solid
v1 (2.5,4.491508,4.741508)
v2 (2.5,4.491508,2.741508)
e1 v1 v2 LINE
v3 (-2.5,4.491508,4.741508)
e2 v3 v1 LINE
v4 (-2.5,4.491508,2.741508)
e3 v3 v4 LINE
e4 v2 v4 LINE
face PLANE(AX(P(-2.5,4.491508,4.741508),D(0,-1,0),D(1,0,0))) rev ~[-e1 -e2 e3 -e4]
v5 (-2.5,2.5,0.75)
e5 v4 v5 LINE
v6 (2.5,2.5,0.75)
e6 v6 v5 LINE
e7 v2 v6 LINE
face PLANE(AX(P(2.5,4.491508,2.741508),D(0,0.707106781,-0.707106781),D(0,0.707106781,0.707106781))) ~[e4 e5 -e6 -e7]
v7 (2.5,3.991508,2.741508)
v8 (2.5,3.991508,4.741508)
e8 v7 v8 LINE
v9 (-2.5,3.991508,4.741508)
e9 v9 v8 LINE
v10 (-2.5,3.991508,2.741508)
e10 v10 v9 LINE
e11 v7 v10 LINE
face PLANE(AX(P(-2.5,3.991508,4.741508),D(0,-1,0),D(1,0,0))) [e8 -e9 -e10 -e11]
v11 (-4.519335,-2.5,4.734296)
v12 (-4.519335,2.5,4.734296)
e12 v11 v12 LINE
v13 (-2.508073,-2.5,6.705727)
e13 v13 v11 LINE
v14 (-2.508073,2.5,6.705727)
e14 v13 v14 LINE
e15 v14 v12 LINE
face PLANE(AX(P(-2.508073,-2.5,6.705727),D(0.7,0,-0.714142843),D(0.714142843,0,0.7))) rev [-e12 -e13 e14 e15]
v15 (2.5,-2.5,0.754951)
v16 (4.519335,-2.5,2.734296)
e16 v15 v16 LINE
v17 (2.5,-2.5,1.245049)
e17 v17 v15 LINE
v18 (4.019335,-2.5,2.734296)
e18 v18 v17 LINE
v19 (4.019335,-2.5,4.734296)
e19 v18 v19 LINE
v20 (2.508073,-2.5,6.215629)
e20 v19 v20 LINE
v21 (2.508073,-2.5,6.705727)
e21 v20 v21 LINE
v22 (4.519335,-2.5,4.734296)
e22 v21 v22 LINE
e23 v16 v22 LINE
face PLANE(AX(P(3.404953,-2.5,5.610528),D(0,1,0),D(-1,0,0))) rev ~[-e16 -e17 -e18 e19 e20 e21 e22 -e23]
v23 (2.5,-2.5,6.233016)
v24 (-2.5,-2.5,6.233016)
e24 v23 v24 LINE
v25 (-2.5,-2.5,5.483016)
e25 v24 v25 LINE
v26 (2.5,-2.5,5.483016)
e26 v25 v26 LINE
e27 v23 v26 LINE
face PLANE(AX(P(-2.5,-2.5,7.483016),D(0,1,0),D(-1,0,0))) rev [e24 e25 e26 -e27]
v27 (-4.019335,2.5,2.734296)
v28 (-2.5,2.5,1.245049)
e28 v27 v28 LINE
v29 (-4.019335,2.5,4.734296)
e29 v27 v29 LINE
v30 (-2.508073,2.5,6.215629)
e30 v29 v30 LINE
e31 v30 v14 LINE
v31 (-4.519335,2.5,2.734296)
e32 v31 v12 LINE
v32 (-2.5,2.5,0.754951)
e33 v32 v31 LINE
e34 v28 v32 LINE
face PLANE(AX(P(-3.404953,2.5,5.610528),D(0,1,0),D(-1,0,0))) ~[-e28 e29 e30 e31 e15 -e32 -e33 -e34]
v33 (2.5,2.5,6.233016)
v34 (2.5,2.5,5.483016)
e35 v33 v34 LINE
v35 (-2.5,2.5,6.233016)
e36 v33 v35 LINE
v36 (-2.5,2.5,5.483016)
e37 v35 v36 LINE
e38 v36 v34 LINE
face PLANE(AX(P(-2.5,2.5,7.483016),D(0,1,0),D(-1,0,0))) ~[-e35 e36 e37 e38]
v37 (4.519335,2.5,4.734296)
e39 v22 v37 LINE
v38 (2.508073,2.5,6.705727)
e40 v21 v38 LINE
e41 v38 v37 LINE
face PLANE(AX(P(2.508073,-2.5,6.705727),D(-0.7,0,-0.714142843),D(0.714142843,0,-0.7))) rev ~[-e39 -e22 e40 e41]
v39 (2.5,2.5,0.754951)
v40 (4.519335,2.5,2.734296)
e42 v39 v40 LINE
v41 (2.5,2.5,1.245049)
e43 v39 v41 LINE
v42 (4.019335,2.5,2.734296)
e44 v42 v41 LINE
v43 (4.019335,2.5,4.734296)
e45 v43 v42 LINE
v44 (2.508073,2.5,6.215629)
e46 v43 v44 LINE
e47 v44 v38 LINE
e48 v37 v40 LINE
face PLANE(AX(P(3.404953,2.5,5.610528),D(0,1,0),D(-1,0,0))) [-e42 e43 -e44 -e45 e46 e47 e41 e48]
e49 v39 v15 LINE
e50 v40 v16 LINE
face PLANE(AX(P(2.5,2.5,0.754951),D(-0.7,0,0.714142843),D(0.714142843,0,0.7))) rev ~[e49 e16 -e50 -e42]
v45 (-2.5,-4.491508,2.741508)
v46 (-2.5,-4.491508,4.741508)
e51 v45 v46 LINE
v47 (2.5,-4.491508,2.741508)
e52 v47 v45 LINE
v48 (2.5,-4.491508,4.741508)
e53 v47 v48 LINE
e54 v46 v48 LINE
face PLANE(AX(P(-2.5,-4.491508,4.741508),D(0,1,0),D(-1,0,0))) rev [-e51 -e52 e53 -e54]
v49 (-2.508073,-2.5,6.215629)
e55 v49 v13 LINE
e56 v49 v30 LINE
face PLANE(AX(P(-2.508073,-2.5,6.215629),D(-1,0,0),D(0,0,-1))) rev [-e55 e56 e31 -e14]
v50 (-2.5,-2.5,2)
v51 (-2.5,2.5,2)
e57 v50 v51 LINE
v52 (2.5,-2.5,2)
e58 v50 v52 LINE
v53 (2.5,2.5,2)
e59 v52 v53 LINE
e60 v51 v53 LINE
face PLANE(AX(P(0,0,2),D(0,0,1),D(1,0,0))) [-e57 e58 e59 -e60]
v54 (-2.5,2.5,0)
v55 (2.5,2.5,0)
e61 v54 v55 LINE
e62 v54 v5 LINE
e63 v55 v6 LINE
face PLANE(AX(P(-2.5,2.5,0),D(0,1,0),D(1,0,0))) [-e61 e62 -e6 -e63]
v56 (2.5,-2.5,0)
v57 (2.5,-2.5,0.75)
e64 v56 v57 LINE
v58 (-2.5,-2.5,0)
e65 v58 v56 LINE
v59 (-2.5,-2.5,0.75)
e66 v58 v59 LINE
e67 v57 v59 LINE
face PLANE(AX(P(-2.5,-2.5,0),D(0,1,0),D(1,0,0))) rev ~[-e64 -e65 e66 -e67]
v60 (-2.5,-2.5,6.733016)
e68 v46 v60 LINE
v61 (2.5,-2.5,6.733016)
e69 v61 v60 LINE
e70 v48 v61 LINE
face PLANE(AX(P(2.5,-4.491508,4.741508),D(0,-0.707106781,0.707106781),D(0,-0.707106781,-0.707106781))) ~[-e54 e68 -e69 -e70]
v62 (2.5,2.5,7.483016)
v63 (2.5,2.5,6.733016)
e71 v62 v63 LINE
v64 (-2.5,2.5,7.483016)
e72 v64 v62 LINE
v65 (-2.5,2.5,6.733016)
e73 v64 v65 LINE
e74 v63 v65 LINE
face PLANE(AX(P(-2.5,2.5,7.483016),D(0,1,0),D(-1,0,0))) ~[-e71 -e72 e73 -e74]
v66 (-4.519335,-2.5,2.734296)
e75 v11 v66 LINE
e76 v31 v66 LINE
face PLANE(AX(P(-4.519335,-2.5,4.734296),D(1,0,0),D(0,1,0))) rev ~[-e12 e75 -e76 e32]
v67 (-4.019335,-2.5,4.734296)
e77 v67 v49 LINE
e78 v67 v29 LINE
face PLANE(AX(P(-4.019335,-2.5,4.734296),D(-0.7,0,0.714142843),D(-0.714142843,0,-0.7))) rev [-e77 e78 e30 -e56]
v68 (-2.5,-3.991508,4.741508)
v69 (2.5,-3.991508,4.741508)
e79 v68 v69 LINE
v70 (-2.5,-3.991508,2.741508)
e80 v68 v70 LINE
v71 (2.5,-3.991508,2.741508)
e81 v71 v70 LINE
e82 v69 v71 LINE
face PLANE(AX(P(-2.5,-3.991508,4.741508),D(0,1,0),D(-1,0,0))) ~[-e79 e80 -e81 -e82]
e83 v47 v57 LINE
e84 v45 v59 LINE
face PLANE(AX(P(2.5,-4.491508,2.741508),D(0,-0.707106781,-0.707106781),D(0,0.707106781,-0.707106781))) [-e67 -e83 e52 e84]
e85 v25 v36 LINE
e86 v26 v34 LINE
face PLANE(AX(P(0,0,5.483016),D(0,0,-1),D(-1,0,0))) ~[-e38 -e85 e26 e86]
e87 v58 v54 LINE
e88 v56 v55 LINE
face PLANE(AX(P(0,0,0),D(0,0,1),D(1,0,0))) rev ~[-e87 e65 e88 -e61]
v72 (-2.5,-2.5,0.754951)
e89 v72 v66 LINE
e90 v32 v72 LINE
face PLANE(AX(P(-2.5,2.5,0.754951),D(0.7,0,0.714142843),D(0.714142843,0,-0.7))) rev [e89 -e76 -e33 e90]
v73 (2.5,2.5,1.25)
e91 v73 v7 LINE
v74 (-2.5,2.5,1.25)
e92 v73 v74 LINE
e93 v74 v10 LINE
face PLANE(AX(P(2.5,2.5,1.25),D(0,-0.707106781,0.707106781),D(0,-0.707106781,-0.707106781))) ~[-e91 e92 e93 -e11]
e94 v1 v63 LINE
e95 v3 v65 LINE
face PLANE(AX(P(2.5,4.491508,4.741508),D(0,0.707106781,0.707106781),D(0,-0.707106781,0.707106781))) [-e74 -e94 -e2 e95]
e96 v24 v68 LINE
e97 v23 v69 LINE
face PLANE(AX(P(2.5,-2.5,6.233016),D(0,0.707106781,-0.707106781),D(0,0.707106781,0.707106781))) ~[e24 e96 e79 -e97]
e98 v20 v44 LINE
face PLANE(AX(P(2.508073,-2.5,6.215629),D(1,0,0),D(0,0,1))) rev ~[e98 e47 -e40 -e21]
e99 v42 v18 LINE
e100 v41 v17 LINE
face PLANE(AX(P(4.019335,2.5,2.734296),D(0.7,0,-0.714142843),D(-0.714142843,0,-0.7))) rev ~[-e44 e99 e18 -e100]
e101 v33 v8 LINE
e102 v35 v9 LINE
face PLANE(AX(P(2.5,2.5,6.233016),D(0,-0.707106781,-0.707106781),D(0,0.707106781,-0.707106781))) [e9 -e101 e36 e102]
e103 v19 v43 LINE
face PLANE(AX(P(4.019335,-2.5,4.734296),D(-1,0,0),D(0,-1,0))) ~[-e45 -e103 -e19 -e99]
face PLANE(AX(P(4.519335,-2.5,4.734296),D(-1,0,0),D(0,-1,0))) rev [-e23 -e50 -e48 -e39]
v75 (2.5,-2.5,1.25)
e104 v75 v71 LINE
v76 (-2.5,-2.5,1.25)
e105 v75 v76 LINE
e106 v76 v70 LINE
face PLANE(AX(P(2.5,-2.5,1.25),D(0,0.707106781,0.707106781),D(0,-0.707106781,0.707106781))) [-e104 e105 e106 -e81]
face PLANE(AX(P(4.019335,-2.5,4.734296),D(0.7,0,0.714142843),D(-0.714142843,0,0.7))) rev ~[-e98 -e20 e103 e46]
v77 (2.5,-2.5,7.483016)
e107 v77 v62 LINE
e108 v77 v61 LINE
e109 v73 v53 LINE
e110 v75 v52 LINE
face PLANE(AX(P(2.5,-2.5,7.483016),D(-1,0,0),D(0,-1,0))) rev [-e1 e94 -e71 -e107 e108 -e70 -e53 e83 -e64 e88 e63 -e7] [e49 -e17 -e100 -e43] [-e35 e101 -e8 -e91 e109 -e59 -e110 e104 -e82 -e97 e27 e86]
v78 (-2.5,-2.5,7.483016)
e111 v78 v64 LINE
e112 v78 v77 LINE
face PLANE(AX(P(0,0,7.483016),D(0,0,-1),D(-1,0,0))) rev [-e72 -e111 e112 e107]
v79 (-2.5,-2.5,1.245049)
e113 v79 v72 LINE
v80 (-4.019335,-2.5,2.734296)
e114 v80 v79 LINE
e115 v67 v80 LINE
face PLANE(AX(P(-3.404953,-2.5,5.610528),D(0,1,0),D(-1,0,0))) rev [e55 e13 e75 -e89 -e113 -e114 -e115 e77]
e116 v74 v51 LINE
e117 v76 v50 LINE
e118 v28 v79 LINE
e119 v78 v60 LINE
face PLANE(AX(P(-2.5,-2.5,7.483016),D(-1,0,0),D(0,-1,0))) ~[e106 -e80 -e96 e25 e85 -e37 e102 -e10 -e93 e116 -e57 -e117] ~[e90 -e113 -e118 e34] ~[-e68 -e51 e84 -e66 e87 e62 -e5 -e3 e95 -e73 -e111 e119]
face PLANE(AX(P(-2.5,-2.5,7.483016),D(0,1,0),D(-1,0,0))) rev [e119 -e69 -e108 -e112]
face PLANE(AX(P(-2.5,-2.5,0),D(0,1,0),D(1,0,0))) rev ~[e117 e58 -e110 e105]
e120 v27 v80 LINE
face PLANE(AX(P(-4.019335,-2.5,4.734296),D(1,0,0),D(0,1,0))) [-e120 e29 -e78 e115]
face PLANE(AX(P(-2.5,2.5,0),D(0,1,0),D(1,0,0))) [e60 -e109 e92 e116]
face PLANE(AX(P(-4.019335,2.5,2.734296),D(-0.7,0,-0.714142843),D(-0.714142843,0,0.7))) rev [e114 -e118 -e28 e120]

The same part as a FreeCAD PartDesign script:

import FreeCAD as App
import Part
import Sketcher

doc = App.newDocument("Part")
body = doc.addObject("PartDesign::Body", "Body")

# Sketch on XY plane
sketch1 = doc.addObject("Sketcher::SketchObject", "Sketch")
body.addObject(sketch1)
sketch1.AttachmentSupport = (doc.XY_Plane, [""])
sketch1.MapMode = "FlatFace"
sketch1.addGeometry([
    Part.LineSegment(App.Vector(-2, 2, 0), App.Vector(-2, -2, 0)),
    Part.LineSegment(App.Vector(-2, -2, 0), App.Vector(2, -2, 0)),
    Part.LineSegment(App.Vector(2, -2, 0), App.Vector(2, 2, 0)),
    Part.LineSegment(App.Vector(2, 2, 0), App.Vector(-2, 2, 0)),
], False)
sketch1.addConstraint([
    Sketcher.Constraint("Coincident", 0, 2, 1, 1),
    Sketcher.Constraint("Coincident", 1, 2, 2, 1),
    Sketcher.Constraint("Coincident", 2, 2, 3, 1),
    Sketcher.Constraint("Coincident", 3, 2, 0, 1),
    Sketcher.Constraint("Vertical", 0),
    Sketcher.Constraint("Horizontal", 1),
    Sketcher.Constraint("Vertical", 2),
    Sketcher.Constraint("Horizontal", 3),
    Sketcher.Constraint("Symmetric", 0, 2, 2, 2, -1, 1),
    Sketcher.Constraint("Equal", 3, 0),
    Sketcher.Constraint("DistanceX", 1, 1, 1, 2, 5.0),
])
pad1 = doc.addObject("PartDesign::Pad", "Pad")
body.addObject(pad1)
pad1.Profile = sketch1
pad1.Length = 2

# Sketch on YZ plane
sketch2 = doc.addObject("Sketcher::SketchObject", "Sketch001")
body.addObject(sketch2)
sketch2.AttachmentSupport = (doc.YZ_Plane, [""])
sketch2.MapMode = "FlatFace"
sketch2.AttachmentOffset = App.Placement(App.Vector(0, 0, 2.5), App.Rotation())
sketch2.addGeometry([
    Part.LineSegment(App.Vector(-2.5, 1.2, 0), App.Vector(-4, 2.7, 0)),
    Part.LineSegment(App.Vector(-4, 2.7, 0), App.Vector(-4.5, 2.7, 0)),
    Part.LineSegment(App.Vector(-4.5, 2.7, 0), App.Vector(-2.5, 0.8, 0)),
    Part.LineSegment(App.Vector(-2.5, 0.8, 0), App.Vector(-2.5, 1.2, 0)),
], False)
sketch2.addConstraint([
    Sketcher.Constraint("Coincident", 0, 2, 1, 1),
    Sketcher.Constraint("Coincident", 1, 2, 2, 1),
    Sketcher.Constraint("Coincident", 2, 2, 3, 1),
    Sketcher.Constraint("Coincident", 3, 2, 0, 1),
    Sketcher.Constraint("Horizontal", 1),
    Sketcher.Constraint("Vertical", 3),
    Sketcher.Constraint("Parallel", 0, 2),
    Sketcher.Constraint("Equal", 1, 3),
    Sketcher.Constraint("DistanceX", 1, 2, 1, 1, 0.5),
    Sketcher.Constraint("DistanceX", 2, 2, -1, 1, 2.5),
    Sketcher.Constraint("DistanceY", -1, 1, 2, 2, 0.75),
    Sketcher.Constraint("Distance", 0, 2.109311),
])
pad2 = doc.addObject("PartDesign::Pad", "Pad001")
body.addObject(pad2)
pad2.Profile = sketch2
pad2.Length = 5
pad2.Reversed = True

# Sketch on XZ plane
sketch3 = doc.addObject("Sketcher::SketchObject", "Sketch002")
body.addObject(sketch3)
sketch3.AttachmentSupport = (doc.XZ_Plane, [""])
sketch3.MapMode = "FlatFace"
sketch3.AttachmentOffset = App.Placement(App.Vector(0, 0, -2.5), App.Rotation())
sketch3.addGeometry([
    Part.LineSegment(App.Vector(4.52, 2.73, 0), App.Vector(2.5, 0.75, 0)),
    Part.LineSegment(App.Vector(2.5, 0.75, 0), App.Vector(2.5, 1.25, 0)),
    Part.LineSegment(App.Vector(2.5, 1.25, 0), App.Vector(4.02, 2.73, 0)),
    Part.LineSegment(App.Vector(4.02, 2.73, 0), App.Vector(4.52, 2.73, 0)),
], False)
sketch3.addConstraint([
    Sketcher.Constraint("Coincident", 0, 2, 1, 1),
    Sketcher.Constraint("Coincident", 1, 2, 2, 1),
    Sketcher.Constraint("Coincident", 2, 2, 3, 1),
    Sketcher.Constraint("Coincident", 3, 2, 0, 1),
    Sketcher.Constraint("Vertical", 1),
    Sketcher.Constraint("Horizontal", 3),
    Sketcher.Constraint("Parallel", 0, 2),
    Sketcher.Constraint("DistanceX", 3, 1, 3, 2, 0.5),
    Sketcher.Constraint("DistanceX", -1, 1, 0, 2, 2.5),
    Sketcher.Constraint("DistanceY", 1, 1, 1, 2, 0.490098),
    Sketcher.Constraint("DistanceY", -1, 1, 0, 2, 0.754951),
    Sketcher.Constraint("Distance", 0, 2.827635),
])
pad3 = doc.addObject("PartDesign::Pad", "Pad002")
body.addObject(pad3)
pad3.Profile = sketch3
pad3.Length = 5
doc.recompute()

mirrored = doc.addObject("PartDesign::Mirrored", "Mirrored")
body.addObject(mirrored)
mirrored.Originals = [pad2]
mirrored.MirrorPlane = (doc.XZ_Plane, [""])
body.Tip = mirrored
doc.recompute()

mirrored2 = doc.addObject("PartDesign::Mirrored", "Mirrored001")
body.addObject(mirrored2)
mirrored2.Originals = [pad3]
mirrored2.MirrorPlane = (doc.YZ_Plane, [""])
body.Tip = mirrored2

# Sketch on XY plane
sketch4 = doc.addObject("Sketcher::SketchObject", "Sketch003")
body.addObject(sketch4)
sketch4.AttachmentSupport = (doc.XY_Plane, [""])
sketch4.MapMode = "FlatFace"
sketch4.AttachmentOffset = App.Placement(App.Vector(0, 0, 2.741508), App.Rotation())
sketch4.addGeometry([
    Part.LineSegment(App.Vector(-2.5, -4, 0), App.Vector(-2.5, -4.5, 0)),
    Part.LineSegment(App.Vector(-2.5, -4.5, 0), App.Vector(2.5, -4.5, 0)),
    Part.LineSegment(App.Vector(2.5, -4.5, 0), App.Vector(2.5, -4, 0)),
    Part.LineSegment(App.Vector(2.5, -4, 0), App.Vector(-2.5, -4, 0)),
], False)
sketch4.addConstraint([
    Sketcher.Constraint("Coincident", 0, 2, 1, 1),
    Sketcher.Constraint("Coincident", 1, 2, 2, 1),
    Sketcher.Constraint("Coincident", 2, 2, 3, 1),
    Sketcher.Constraint("Coincident", 3, 2, 0, 1),
    Sketcher.Constraint("Vertical", 0),
    Sketcher.Constraint("Horizontal", 1),
    Sketcher.Constraint("Vertical", 2),
    Sketcher.Constraint("Horizontal", 3),
    Sketcher.Constraint("DistanceX", 1, 1, 1, 2, 5.0),
    Sketcher.Constraint("DistanceY", 0, 2, 0, 1, 0.5),
    Sketcher.Constraint("DistanceX", 0, 2, -1, 1, 2.5),
    Sketcher.Constraint("DistanceY", 0, 2, -1, 1, 4.491508),
])
pad4 = doc.addObject("PartDesign::Pad", "Pad003")
body.addObject(pad4)
pad4.Profile = sketch4
pad4.Length = 1

# Sketch on XY plane
sketch5 = doc.addObject("Sketcher::SketchObject", "Sketch004")
body.addObject(sketch5)
sketch5.AttachmentSupport = (doc.XY_Plane, [""])
sketch5.MapMode = "FlatFace"
sketch5.AttachmentOffset = App.Placement(App.Vector(0, 0, 2.734296), App.Rotation())
sketch5.addGeometry([
    Part.LineSegment(App.Vector(4, 2.5, 0), App.Vector(4, -2.5, 0)),
    Part.LineSegment(App.Vector(4, -2.5, 0), App.Vector(4.5, -2.5, 0)),
    Part.LineSegment(App.Vector(4.5, -2.5, 0), App.Vector(4.5, 2.5, 0)),
    Part.LineSegment(App.Vector(4.5, 2.5, 0), App.Vector(4, 2.5, 0)),
], False)
sketch5.addConstraint([
    Sketcher.Constraint("Coincident", 0, 2, 1, 1),
    Sketcher.Constraint("Coincident", 1, 2, 2, 1),
    Sketcher.Constraint("Coincident", 2, 2, 3, 1),
    Sketcher.Constraint("Coincident", 3, 2, 0, 1),
    Sketcher.Constraint("Vertical", 0),
    Sketcher.Constraint("Horizontal", 1),
    Sketcher.Constraint("Vertical", 2),
    Sketcher.Constraint("Horizontal", 3),
    Sketcher.Constraint("DistanceY", 0, 2, 0, 1, 5.0),
    Sketcher.Constraint("DistanceX", 1, 1, 1, 2, 0.5),
    Sketcher.Constraint("DistanceY", 0, 2, -1, 1, 2.5),
    Sketcher.Constraint("DistanceX", -1, 1, 0, 2, 4.019335),
])
pad5 = doc.addObject("PartDesign::Pad", "Pad004")
body.addObject(pad5)
pad5.Profile = sketch5
pad5.Length = 1
doc.recompute()

mirrored3 = doc.addObject("PartDesign::Mirrored", "Mirrored002")
body.addObject(mirrored3)
mirrored3.Originals = [pad4]
mirrored3.MirrorPlane = (doc.XZ_Plane, [""])
body.Tip = mirrored3
doc.recompute()

mirrored4 = doc.addObject("PartDesign::Mirrored", "Mirrored003")
body.addObject(mirrored4)
mirrored4.Originals = [pad5]
mirrored4.MirrorPlane = (doc.YZ_Plane, [""])
body.Tip = mirrored4
doc.recompute()

datumplane = doc.addObject("PartDesign::Plane", "DatumPlane")
body.addObject(datumplane)
datumplane.AttachmentSupport = (doc.XY_Plane, [""])
datumplane.MapMode = "FlatFace"
datumplane.AttachmentOffset = App.Placement(App.Vector(0, 0, 3.741508), App.Rotation())
mirrored5 = doc.addObject("PartDesign::Mirrored", "Mirrored004")
body.addObject(mirrored5)
mirrored5.Originals = [pad4]
mirrored5.MirrorPlane = (datumplane, [""])
body.Tip = mirrored5

# Sketch on XY plane
sketch6 = doc.addObject("Sketcher::SketchObject", "Sketch005")
body.addObject(sketch6)
sketch6.AttachmentSupport = (doc.XY_Plane, [""])
sketch6.MapMode = "FlatFace"
sketch6.AttachmentOffset = App.Placement(App.Vector(0, 0, 4.741508), App.Rotation())
sketch6.addGeometry([
    Part.LineSegment(App.Vector(-2.5, 4, 0), App.Vector(-2.5, 4.5, 0)),
    Part.LineSegment(App.Vector(-2.5, 4.5, 0), App.Vector(2.5, 4.5, 0)),
    Part.LineSegment(App.Vector(2.5, 4.5, 0), App.Vector(2.5, 4, 0)),
    Part.LineSegment(App.Vector(2.5, 4, 0), App.Vector(-2.5, 4, 0)),
], False)
sketch6.addConstraint([
    Sketcher.Constraint("Coincident", 0, 2, 1, 1),
    Sketcher.Constraint("Coincident", 1, 2, 2, 1),
    Sketcher.Constraint("Coincident", 2, 2, 3, 1),
    Sketcher.Constraint("Coincident", 3, 2, 0, 1),
    Sketcher.Constraint("Vertical", 0),
    Sketcher.Constraint("Horizontal", 1),
    Sketcher.Constraint("Vertical", 2),
    Sketcher.Constraint("Horizontal", 3),
    Sketcher.Constraint("DistanceX", 1, 1, 1, 2, 5.0),
    Sketcher.Constraint("DistanceY", 0, 1, 0, 2, 0.5),
    Sketcher.Constraint("DistanceX", 0, 2, -1, 1, 2.5),
    Sketcher.Constraint("DistanceY", -1, 1, 0, 2, 4.491508),
])
pad6 = doc.addObject("PartDesign::Pad", "Pad005")
body.addObject(pad6)
pad6.Profile = sketch6
pad6.Length = 1
pad6.Reversed = True
doc.recompute()

datumplane2 = doc.addObject("PartDesign::Plane", "DatumPlane001")
body.addObject(datumplane2)
datumplane2.AttachmentSupport = (doc.XY_Plane, [""])
datumplane2.MapMode = "FlatFace"
datumplane2.AttachmentOffset = App.Placement(App.Vector(0, 0, 3.741508), App.Rotation())
mirrored6 = doc.addObject("PartDesign::Mirrored", "Mirrored005")
body.addObject(mirrored6)
mirrored6.Originals = [pad2]
mirrored6.MirrorPlane = (datumplane2, [""])
body.Tip = mirrored6

# Sketch on YZ plane
sketch7 = doc.addObject("Sketcher::SketchObject", "Sketch006")
body.addObject(sketch7)
sketch7.AttachmentSupport = (doc.YZ_Plane, [""])
sketch7.MapMode = "FlatFace"
sketch7.AttachmentOffset = App.Placement(App.Vector(0, 0, 2.5), App.Rotation())
sketch7.addGeometry([
    Part.LineSegment(App.Vector(2.5, 6.2, 0), App.Vector(4, 4.7, 0)),
    Part.LineSegment(App.Vector(4, 4.7, 0), App.Vector(4.5, 4.7, 0)),
    Part.LineSegment(App.Vector(4.5, 4.7, 0), App.Vector(2.5, 6.7, 0)),
    Part.LineSegment(App.Vector(2.5, 6.7, 0), App.Vector(2.5, 6.2, 0)),
], False)
sketch7.addConstraint([
    Sketcher.Constraint("Coincident", 0, 2, 1, 1),
    Sketcher.Constraint("Coincident", 1, 2, 2, 1),
    Sketcher.Constraint("Coincident", 2, 2, 3, 1),
    Sketcher.Constraint("Coincident", 3, 2, 0, 1),
    Sketcher.Constraint("Horizontal", 1),
    Sketcher.Constraint("Vertical", 3),
    Sketcher.Constraint("Parallel", 0, 2),
    Sketcher.Constraint("Equal", 1, 3),
    Sketcher.Constraint("DistanceX", 1, 1, 1, 2, 0.5),
    Sketcher.Constraint("DistanceX", -1, 1, 2, 2, 2.5),
    Sketcher.Constraint("Distance", 0, 2.109311),
    Sketcher.Constraint("DistanceY", -1, 1, 0, 2, 4.741508),
])
pad7 = doc.addObject("PartDesign::Pad", "Pad006")
body.addObject(pad7)
pad7.Profile = sketch7
pad7.Length = 5
pad7.Reversed = True
doc.recompute()

datumplane3 = doc.addObject("PartDesign::Plane", "DatumPlane002")
body.addObject(datumplane3)
datumplane3.AttachmentSupport = (doc.XY_Plane, [""])
datumplane3.MapMode = "FlatFace"
datumplane3.AttachmentOffset = App.Placement(App.Vector(0, 0, 3.734296), App.Rotation())
mirrored7 = doc.addObject("PartDesign::Mirrored", "Mirrored006")
body.addObject(mirrored7)
mirrored7.Originals = [pad5]
mirrored7.MirrorPlane = (datumplane3, [""])
body.Tip = mirrored7

# Sketch on XY plane
sketch8 = doc.addObject("Sketcher::SketchObject", "Sketch007")
body.addObject(sketch8)
sketch8.AttachmentSupport = (doc.XY_Plane, [""])
sketch8.MapMode = "FlatFace"
sketch8.AttachmentOffset = App.Placement(App.Vector(0, 0, 4.734296), App.Rotation())
sketch8.addGeometry([
    Part.LineSegment(App.Vector(-4, 2.5, 0), App.Vector(-4, -2.5, 0)),
    Part.LineSegment(App.Vector(-4, -2.5, 0), App.Vector(-4.5, -2.5, 0)),
    Part.LineSegment(App.Vector(-4.5, -2.5, 0), App.Vector(-4.5, 2.5, 0)),
    Part.LineSegment(App.Vector(-4.5, 2.5, 0), App.Vector(-4, 2.5, 0)),
], False)
sketch8.addConstraint([
    Sketcher.Constraint("Coincident", 0, 2, 1, 1),
    Sketcher.Constraint("Coincident", 1, 2, 2, 1),
    Sketcher.Constraint("Coincident", 2, 2, 3, 1),
    Sketcher.Constraint("Coincident", 3, 2, 0, 1),
    Sketcher.Constraint("Vertical", 0),
    Sketcher.Constraint("Horizontal", 1),
    Sketcher.Constraint("Vertical", 2),
    Sketcher.Constraint("Horizontal", 3),
    Sketcher.Constraint("DistanceY", 0, 2, 0, 1, 5.0),
    Sketcher.Constraint("DistanceX", 1, 2, 1, 1, 0.5),
    Sketcher.Constraint("DistanceY", 0, 2, -1, 1, 2.5),
    Sketcher.Constraint("DistanceX", 0, 2, -1, 1, 4.019335),
])
pad8 = doc.addObject("PartDesign::Pad", "Pad007")
body.addObject(pad8)
pad8.Profile = sketch8
pad8.Length = 1
pad8.Reversed = True

# Sketch on XZ plane
sketch9 = doc.addObject("Sketcher::SketchObject", "Sketch008")
body.addObject(sketch9)
sketch9.AttachmentSupport = (doc.XZ_Plane, [""])
sketch9.MapMode = "FlatFace"
sketch9.AttachmentOffset = App.Placement(App.Vector(0, 0, 2.5), App.Rotation())
sketch9.addGeometry([
    Part.LineSegment(App.Vector(4.02, 4.73, 0), App.Vector(4.52, 4.73, 0)),
    Part.LineSegment(App.Vector(4.52, 4.73, 0), App.Vector(2.51, 6.71, 0)),
    Part.LineSegment(App.Vector(2.51, 6.71, 0), App.Vector(2.51, 6.22, 0)),
    Part.LineSegment(App.Vector(2.51, 6.22, 0), App.Vector(4.02, 4.73, 0)),
], False)
sketch9.addConstraint([
    Sketcher.Constraint("Coincident", 0, 2, 1, 1),
    Sketcher.Constraint("Coincident", 1, 2, 2, 1),
    Sketcher.Constraint("Coincident", 2, 2, 3, 1),
    Sketcher.Constraint("Coincident", 3, 2, 0, 1),
    Sketcher.Constraint("Horizontal", 0),
    Sketcher.Constraint("Vertical", 2),
    Sketcher.Constraint("Parallel", 1, 3),
    Sketcher.Constraint("DistanceX", 0, 1, 0, 2, 0.5),
    Sketcher.Constraint("DistanceY", 2, 2, 2, 1, 0.490098),
    Sketcher.Constraint("Distance", 1, 2.816331),
    Sketcher.Constraint("DistanceY", -1, 1, 2, 2, 6.215629),
    Sketcher.Constraint("DistanceX", -1, 1, 0, 2, 4.519335),
])
pad9 = doc.addObject("PartDesign::Pad", "Pad008")
body.addObject(pad9)
pad9.Profile = sketch9
pad9.Length = 5
pad9.Reversed = True
doc.recompute()

mirrored8 = doc.addObject("PartDesign::Mirrored", "Mirrored007")
body.addObject(mirrored8)
mirrored8.Originals = [pad9]
mirrored8.MirrorPlane = (doc.YZ_Plane, [""])
body.Tip = mirrored8
doc.recompute()

datumplane4 = doc.addObject("PartDesign::Plane", "DatumPlane003")
body.addObject(datumplane4)
datumplane4.AttachmentSupport = (doc.XY_Plane, [""])
datumplane4.MapMode = "FlatFace"
datumplane4.AttachmentOffset = App.Placement(App.Vector(0, 0, 3.741508), App.Rotation())
mirrored9 = doc.addObject("PartDesign::Mirrored", "Mirrored008")
body.addObject(mirrored9)
mirrored9.Originals = [pad1]
mirrored9.MirrorPlane = (datumplane4, [""])
body.Tip = mirrored9

doc.recompute()
